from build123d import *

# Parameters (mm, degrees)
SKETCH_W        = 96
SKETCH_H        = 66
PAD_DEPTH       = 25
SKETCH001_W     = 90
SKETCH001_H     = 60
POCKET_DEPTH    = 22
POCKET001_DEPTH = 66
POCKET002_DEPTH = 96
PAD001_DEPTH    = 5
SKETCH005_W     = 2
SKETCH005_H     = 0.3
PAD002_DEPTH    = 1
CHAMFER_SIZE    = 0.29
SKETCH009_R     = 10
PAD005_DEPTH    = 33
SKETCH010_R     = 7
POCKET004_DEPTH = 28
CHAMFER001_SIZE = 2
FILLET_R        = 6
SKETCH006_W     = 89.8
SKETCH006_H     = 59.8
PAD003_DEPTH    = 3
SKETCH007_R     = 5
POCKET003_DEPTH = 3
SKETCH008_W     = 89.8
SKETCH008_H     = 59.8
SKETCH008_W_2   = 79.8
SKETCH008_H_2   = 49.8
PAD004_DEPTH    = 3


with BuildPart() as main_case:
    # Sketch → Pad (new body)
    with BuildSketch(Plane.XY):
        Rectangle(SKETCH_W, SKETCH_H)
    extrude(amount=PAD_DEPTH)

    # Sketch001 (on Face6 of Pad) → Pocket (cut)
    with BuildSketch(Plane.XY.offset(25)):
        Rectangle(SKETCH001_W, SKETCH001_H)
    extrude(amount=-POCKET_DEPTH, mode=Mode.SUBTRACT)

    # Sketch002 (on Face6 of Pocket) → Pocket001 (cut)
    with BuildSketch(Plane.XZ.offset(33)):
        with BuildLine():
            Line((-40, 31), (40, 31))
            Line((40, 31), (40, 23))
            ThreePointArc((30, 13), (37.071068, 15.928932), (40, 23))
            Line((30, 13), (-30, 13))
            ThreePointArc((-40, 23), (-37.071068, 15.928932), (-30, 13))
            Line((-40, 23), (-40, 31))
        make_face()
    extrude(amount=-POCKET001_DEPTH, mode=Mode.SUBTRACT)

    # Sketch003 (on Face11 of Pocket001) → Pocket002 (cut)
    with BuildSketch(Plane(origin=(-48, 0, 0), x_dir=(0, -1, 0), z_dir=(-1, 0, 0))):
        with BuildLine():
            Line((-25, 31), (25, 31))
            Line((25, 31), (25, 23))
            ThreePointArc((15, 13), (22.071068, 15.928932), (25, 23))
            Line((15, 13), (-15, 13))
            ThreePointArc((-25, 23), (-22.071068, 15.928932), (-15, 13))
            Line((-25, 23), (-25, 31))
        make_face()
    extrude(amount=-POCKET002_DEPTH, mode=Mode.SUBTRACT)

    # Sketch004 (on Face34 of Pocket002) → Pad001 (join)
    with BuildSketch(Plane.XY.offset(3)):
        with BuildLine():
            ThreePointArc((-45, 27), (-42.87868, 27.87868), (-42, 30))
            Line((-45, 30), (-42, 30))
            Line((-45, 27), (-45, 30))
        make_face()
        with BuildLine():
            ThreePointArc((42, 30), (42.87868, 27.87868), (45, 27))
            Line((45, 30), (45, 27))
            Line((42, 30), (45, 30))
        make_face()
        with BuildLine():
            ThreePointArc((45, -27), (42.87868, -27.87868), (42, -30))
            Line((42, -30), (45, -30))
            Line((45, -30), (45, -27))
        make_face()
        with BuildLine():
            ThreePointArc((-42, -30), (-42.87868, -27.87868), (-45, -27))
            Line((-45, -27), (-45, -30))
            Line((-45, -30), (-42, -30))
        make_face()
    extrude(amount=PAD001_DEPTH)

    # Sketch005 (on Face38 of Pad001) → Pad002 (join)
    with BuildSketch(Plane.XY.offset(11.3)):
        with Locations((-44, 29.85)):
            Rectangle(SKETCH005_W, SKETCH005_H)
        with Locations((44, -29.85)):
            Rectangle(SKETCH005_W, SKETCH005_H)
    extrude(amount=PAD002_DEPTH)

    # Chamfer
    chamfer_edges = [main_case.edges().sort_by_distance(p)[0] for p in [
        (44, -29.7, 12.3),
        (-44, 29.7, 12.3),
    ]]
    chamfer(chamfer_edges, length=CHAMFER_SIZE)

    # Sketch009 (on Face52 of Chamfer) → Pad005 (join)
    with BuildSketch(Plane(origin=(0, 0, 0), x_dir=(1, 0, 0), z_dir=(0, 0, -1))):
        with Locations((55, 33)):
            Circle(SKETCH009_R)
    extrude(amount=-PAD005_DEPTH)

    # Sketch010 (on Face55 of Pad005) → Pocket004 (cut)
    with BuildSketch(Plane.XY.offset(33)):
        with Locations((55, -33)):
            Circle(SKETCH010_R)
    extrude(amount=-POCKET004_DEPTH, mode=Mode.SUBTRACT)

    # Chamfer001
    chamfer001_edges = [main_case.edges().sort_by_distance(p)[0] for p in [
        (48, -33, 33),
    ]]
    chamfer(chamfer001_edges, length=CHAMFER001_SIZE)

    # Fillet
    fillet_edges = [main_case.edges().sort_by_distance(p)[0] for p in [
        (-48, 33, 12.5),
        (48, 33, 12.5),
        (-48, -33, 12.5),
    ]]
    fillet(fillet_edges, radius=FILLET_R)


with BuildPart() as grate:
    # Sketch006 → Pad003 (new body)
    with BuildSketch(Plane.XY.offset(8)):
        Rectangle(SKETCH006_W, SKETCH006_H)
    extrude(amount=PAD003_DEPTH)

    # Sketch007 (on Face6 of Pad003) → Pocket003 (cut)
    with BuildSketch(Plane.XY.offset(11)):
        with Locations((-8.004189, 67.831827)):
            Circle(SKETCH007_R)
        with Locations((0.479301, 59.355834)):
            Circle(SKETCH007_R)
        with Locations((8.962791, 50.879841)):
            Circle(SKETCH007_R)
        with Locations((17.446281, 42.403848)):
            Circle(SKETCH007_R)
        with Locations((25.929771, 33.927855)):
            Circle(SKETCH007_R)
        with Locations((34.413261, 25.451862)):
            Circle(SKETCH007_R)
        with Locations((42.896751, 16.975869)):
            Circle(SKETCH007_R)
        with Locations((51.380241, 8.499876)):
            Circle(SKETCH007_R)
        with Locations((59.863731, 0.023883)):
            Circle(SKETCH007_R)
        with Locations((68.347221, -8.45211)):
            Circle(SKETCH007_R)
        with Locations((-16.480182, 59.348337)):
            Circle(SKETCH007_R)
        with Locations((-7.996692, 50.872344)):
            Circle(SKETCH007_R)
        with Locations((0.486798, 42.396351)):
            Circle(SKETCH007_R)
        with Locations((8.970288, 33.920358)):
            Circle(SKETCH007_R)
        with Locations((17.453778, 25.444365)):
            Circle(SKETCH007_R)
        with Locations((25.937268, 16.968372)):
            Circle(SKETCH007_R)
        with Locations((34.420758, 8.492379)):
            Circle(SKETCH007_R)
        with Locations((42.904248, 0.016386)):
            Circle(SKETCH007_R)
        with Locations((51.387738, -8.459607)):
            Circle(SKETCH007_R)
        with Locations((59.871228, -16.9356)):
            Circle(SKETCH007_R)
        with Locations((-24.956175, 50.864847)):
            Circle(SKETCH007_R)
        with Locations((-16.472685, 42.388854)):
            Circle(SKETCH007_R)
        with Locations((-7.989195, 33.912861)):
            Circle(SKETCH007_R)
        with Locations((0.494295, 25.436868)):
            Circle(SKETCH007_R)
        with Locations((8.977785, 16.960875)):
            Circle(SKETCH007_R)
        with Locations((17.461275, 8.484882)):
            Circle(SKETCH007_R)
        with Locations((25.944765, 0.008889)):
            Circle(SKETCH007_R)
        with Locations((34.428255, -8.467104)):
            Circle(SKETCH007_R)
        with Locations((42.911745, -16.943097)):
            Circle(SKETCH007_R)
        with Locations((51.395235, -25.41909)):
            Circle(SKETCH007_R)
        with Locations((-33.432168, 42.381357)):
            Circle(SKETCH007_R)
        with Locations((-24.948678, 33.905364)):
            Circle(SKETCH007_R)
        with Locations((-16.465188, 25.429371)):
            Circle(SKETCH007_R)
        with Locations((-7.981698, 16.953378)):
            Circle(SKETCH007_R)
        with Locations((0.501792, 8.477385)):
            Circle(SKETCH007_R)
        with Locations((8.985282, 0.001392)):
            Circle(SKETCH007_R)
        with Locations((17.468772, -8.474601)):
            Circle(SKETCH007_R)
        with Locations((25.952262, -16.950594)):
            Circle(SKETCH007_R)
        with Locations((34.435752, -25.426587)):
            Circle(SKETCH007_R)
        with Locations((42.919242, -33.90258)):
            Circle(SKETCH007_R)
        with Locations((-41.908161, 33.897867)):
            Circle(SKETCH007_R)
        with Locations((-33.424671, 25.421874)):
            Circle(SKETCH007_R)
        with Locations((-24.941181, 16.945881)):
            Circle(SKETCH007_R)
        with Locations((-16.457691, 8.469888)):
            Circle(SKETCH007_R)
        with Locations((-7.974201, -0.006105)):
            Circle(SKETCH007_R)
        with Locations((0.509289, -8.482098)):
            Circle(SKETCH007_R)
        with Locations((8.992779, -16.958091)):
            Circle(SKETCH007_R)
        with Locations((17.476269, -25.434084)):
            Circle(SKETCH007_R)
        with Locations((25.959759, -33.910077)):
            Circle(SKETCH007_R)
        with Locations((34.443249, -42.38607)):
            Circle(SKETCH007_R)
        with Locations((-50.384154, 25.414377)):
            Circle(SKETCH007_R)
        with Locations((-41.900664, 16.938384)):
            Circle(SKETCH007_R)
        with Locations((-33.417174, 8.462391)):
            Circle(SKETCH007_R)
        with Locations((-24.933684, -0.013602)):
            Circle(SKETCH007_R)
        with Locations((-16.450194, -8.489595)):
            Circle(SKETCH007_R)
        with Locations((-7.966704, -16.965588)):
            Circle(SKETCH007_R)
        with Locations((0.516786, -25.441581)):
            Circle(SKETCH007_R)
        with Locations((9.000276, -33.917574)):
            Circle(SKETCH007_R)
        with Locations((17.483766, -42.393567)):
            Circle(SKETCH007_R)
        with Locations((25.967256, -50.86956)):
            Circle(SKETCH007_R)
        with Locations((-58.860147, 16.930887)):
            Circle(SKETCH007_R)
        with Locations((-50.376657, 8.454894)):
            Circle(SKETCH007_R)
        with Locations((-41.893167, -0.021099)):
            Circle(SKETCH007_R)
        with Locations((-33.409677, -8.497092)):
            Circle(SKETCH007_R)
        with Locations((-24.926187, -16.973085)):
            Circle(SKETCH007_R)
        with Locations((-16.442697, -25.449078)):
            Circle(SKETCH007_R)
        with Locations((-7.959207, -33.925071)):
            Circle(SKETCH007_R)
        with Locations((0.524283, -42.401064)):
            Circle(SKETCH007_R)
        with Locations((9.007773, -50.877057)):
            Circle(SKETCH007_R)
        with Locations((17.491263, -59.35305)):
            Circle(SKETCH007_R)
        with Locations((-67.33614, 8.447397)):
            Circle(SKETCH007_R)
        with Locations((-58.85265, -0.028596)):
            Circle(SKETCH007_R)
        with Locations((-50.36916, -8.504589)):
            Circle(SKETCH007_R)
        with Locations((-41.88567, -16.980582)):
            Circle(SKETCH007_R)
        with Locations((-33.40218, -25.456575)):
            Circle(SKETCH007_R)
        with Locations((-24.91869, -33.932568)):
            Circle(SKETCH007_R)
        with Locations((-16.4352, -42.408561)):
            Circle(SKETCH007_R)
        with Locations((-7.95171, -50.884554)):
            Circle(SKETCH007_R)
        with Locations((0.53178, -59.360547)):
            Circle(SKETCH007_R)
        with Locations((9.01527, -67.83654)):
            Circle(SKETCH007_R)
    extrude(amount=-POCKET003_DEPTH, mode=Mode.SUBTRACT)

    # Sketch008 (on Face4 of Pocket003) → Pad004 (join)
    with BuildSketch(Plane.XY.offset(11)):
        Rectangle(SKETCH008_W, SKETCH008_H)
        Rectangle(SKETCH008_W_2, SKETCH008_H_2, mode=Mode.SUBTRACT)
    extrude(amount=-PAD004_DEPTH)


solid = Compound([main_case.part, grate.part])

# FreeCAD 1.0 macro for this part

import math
import FreeCAD as App
import Part
import Sketcher

V = App.Vector
Q = App.Units.Quantity


def edges_at(feature, points):
    """Names of the edges that pass closest to the given points."""
    edges = feature.Shape.Edges
    near = lambda p: min(range(len(edges)), key=lambda i: edges[i].distToShape(Part.Vertex(*p))[0])
    return sorted({f"Edge{near(p) + 1}" for p in points})


def add_polygon(sketch, points):
    """Adds a closed chain of lines whose ends are joined by coincident constraints."""
    first, n = sketch.GeometryCount, len(points)
    for a, b in zip(points, points[1:] + points[:1]):
        sketch.addGeometry(Part.LineSegment(App.Vector(*a, 0), App.Vector(*b, 0)), False)
    for i in range(n):
        sketch.addConstraint(Sketcher.Constraint("Coincident", first + i, 2, first + (i + 1) % n, 1))

doc = App.newDocument("Part")
body = doc.addObject("PartDesign::Body", "Body")

# Sketch on XY plane
sketch1 = doc.addObject("Sketcher::SketchObject", "Sketch")
body.addObject(sketch1)
sketch1.AttachmentSupport = (doc.XY_Plane, [""])
sketch1.MapMode = "FlatFace"
add_polygon(sketch1, [(-48, 33), (-48, -33), (48, -33), (48, 33)])  # lines 0-3
sketch1.addConstraint([
    Sketcher.Constraint("Vertical", 0),
    Sketcher.Constraint("Horizontal", 1),
    Sketcher.Constraint("Vertical", 2),
    Sketcher.Constraint("Horizontal", 3),
    Sketcher.Constraint("Symmetric", 0, 2, 2, 2, -1, 1),
    Sketcher.Constraint("DistanceX", 1, 1, 1, 2, Q("96 mm")),
    Sketcher.Constraint("DistanceY", 0, 2, 0, 1, Q("66 mm")),
])
pad1 = doc.addObject("PartDesign::Pad", "Pad")
body.addObject(pad1)
pad1.Profile = sketch1
pad1.Length = 25

# Sketch on XY plane
sketch2 = doc.addObject("Sketcher::SketchObject", "Sketch001")
body.addObject(sketch2)
sketch2.AttachmentSupport = (doc.XY_Plane, [""])
sketch2.MapMode = "FlatFace"
sketch2.AttachmentOffset = App.Placement(V(0, 0, 25), App.Rotation())
add_polygon(sketch2, [(-45, 30), (-45, -30), (45, -30), (45, 30)])  # lines 0-3
sketch2.addConstraint([
    Sketcher.Constraint("Vertical", 0),
    Sketcher.Constraint("Horizontal", 1),
    Sketcher.Constraint("Vertical", 2),
    Sketcher.Constraint("Horizontal", 3),
    Sketcher.Constraint("Symmetric", 0, 2, 2, 2, -1, 1),
    Sketcher.Constraint("DistanceX", 1, 1, 1, 2, Q("90 mm")),
    Sketcher.Constraint("DistanceY", 0, 2, 0, 1, Q("60 mm")),
])
pocket1 = doc.addObject("PartDesign::Pocket", "Pocket")
body.addObject(pocket1)
pocket1.Profile = sketch2
pocket1.Length = 22

# Sketch on XZ plane
sketch3 = doc.addObject("Sketcher::SketchObject", "Sketch002")
body.addObject(sketch3)
sketch3.AttachmentSupport = (doc.XZ_Plane, [""])
sketch3.MapMode = "FlatFace"
sketch3.AttachmentOffset = App.Placement(V(0, 0, 33), App.Rotation())
sketch3.addGeometry([
    Part.LineSegment(V(40, 31, 0), V(-40, 31, 0)),  # 0
    Part.LineSegment(V(-40, 31, 0), V(-40, 23, 0)),  # 1
    Part.ArcOfCircle(Part.Circle(V(-30, 23, 0), V(0, 0, 1), 10), math.radians(180), math.radians(270)),  # 2
    Part.LineSegment(V(-30, 13, 0), V(30, 13, 0)),  # 3
    Part.ArcOfCircle(Part.Circle(V(30, 23, 0), V(0, 0, 1), 10), math.radians(-90), math.radians(0)),  # 4
    Part.LineSegment(V(40, 23, 0), V(40, 31, 0)),  # 5
], False)
sketch3.addConstraint([
    Sketcher.Constraint("Coincident", 0, 2, 1, 1),
    Sketcher.Constraint("Tangent", 1, 2, 2, 1),
    Sketcher.Constraint("Tangent", 2, 2, 3, 1),
    Sketcher.Constraint("Tangent", 3, 2, 4, 1),
    Sketcher.Constraint("Tangent", 4, 2, 5, 1),
    Sketcher.Constraint("Coincident", 5, 2, 0, 1),
    Sketcher.Constraint("Horizontal", 0),
    Sketcher.Constraint("Vertical", 1),
    Sketcher.Constraint("Horizontal", 3),
    Sketcher.Constraint("Vertical", 5),
    Sketcher.Constraint("Equal", 2, 4),
    Sketcher.Constraint("Radius", 2, Q("9.999999 mm")),
    Sketcher.Constraint("DistanceX", 0, 2, 0, 1, Q("80 mm")),
    Sketcher.Constraint("DistanceY", 1, 2, 1, 1, Q("8 mm")),
    Sketcher.Constraint("DistanceX", 2, 3, -1, 1, Q("30.000001 mm")),
    Sketcher.Constraint("DistanceY", -1, 1, 2, 3, Q("22.999999 mm")),
])
pocket2 = doc.addObject("PartDesign::Pocket", "Pocket001")
body.addObject(pocket2)
pocket2.Profile = sketch3
pocket2.Length = 66

# Sketch on YZ plane
sketch4 = doc.addObject("Sketcher::SketchObject", "Sketch003")
body.addObject(sketch4)
sketch4.AttachmentSupport = (doc.YZ_Plane, [""])
sketch4.MapMode = "FlatFace"
sketch4.AttachmentOffset = App.Placement(V(0, 0, -48), App.Rotation())
sketch4.addGeometry([
    Part.LineSegment(V(-25, 31, 0), V(25, 31, 0)),  # 0
    Part.LineSegment(V(25, 31, 0), V(25, 23, 0)),  # 1
    Part.ArcOfCircle(Part.Circle(V(15, 23, 0), V(0, 0, 1), 10), math.radians(-90), math.radians(0)),  # 2
    Part.LineSegment(V(15, 13, 0), V(-15, 13, 0)),  # 3
    Part.ArcOfCircle(Part.Circle(V(-15, 23, 0), V(0, 0, 1), 10), math.radians(180), math.radians(270)),  # 4
    Part.LineSegment(V(-25, 23, 0), V(-25, 31, 0)),  # 5
], False)
sketch4.addConstraint([
    Sketcher.Constraint("Coincident", 0, 2, 1, 1),
    Sketcher.Constraint("Tangent", 1, 2, 2, 2),
    Sketcher.Constraint("Tangent", 2, 1, 3, 1),
    Sketcher.Constraint("Tangent", 3, 2, 4, 2),
    Sketcher.Constraint("Tangent", 4, 1, 5, 1),
    Sketcher.Constraint("Coincident", 5, 2, 0, 1),
    Sketcher.Constraint("Horizontal", 0),
    Sketcher.Constraint("Vertical", 1),
    Sketcher.Constraint("Horizontal", 3),
    Sketcher.Constraint("Vertical", 5),
    Sketcher.Constraint("Equal", 2, 4),
    Sketcher.Constraint("Radius", 2, Q("9.999999 mm")),
    Sketcher.Constraint("DistanceX", 0, 1, 0, 2, Q("50 mm")),
    Sketcher.Constraint("DistanceY", 1, 2, 1, 1, Q("8 mm")),
    Sketcher.Constraint("DistanceX", -1, 1, 2, 3, Q("15.000001 mm")),
    Sketcher.Constraint("DistanceY", -1, 1, 2, 3, Q("22.999999 mm")),
])
pocket3 = doc.addObject("PartDesign::Pocket", "Pocket002")
body.addObject(pocket3)
pocket3.Profile = sketch4
pocket3.Length = 96
pocket3.Reversed = True

# Sketch on XY plane
sketch5 = doc.addObject("Sketcher::SketchObject", "Sketch004")
body.addObject(sketch5)
sketch5.AttachmentSupport = (doc.XY_Plane, [""])
sketch5.MapMode = "FlatFace"
sketch5.AttachmentOffset = App.Placement(V(0, 0, 3), App.Rotation())
sketch5.addGeometry([
    Part.ArcOfCircle(Part.Circle(V(-45, 30, 0), V(0, 0, 1), 3), math.radians(-90), math.radians(0)),  # 0
    Part.LineSegment(V(-42, 30, 0), V(-45, 30, 0)),  # 1
    Part.LineSegment(V(-45, 30, 0), V(-45, 27, 0)),  # 2
    Part.ArcOfCircle(Part.Circle(V(45, 30, 0), V(0, 0, 1), 3), math.radians(-180), math.radians(-90)),  # 3
    Part.LineSegment(V(45, 27, 0), V(45, 30, 0)),  # 4
    Part.LineSegment(V(45, 30, 0), V(42, 30, 0)),  # 5
    Part.ArcOfCircle(Part.Circle(V(45, -30, 0), V(0, 0, 1), 3), math.radians(90), math.radians(180)),  # 6
    Part.LineSegment(V(42, -30, 0), V(45, -30, 0)),  # 7
    Part.LineSegment(V(45, -30, 0), V(45, -27, 0)),  # 8
    Part.ArcOfCircle(Part.Circle(V(-45, -30, 0), V(0, 0, 1), 3), math.radians(0), math.radians(90)),  # 9
    Part.LineSegment(V(-45, -27, 0), V(-45, -30, 0)),  # 10
    Part.LineSegment(V(-45, -30, 0), V(-42, -30, 0)),  # 11
], False)
sketch5.addConstraint([
    Sketcher.Constraint("Coincident", 0, 2, 1, 1),
    Sketcher.Constraint("Coincident", 1, 2, 2, 1),
    Sketcher.Constraint("Coincident", 2, 2, 0, 1),
    Sketcher.Constraint("Coincident", 3, 2, 4, 1),
    Sketcher.Constraint("Coincident", 4, 2, 5, 1),
    Sketcher.Constraint("Coincident", 5, 2, 3, 1),
    Sketcher.Constraint("Coincident", 6, 2, 7, 1),
    Sketcher.Constraint("Coincident", 7, 2, 8, 1),
    Sketcher.Constraint("Coincident", 8, 2, 6, 1),
    Sketcher.Constraint("Coincident", 9, 2, 10, 1),
    Sketcher.Constraint("Coincident", 10, 2, 11, 1),
    Sketcher.Constraint("Coincident", 11, 2, 9, 1),
    Sketcher.Constraint("Horizontal", 1),
    Sketcher.Constraint("Vertical", 2),
    Sketcher.Constraint("Vertical", 4),
    Sketcher.Constraint("Horizontal", 5),
    Sketcher.Constraint("Horizontal", 7),
    Sketcher.Constraint("Vertical", 8),
    Sketcher.Constraint("Vertical", 10),
    Sketcher.Constraint("Horizontal", 11),
    Sketcher.Constraint("Coincident", 1, 2, 0, 3),
    Sketcher.Constraint("Coincident", 4, 2, 3, 3),
    Sketcher.Constraint("Coincident", 7, 2, 6, 3),
    Sketcher.Constraint("Coincident", 10, 2, 9, 3),
    Sketcher.Constraint("Equal", 0, 3),
    Sketcher.Constraint("Equal", 3, 6),
    Sketcher.Constraint("Equal", 6, 9),
    Sketcher.Constraint("Symmetric", 0, 3, 6, 3, -1, 1),
    Sketcher.Constraint("Symmetric", 3, 3, 9, 3, -1, 1),
    Sketcher.Constraint("Symmetric", 0, 3, 3, 3, -2),
    Sketcher.Constraint("Radius", 0, Q("3.000001 mm")),
    Sketcher.Constraint("DistanceX", 0, 3, -1, 1, Q("45.000001 mm")),
    Sketcher.Constraint("DistanceY", -1, 1, 0, 3, Q("30.000001 mm")),
])
pad2 = doc.addObject("PartDesign::Pad", "Pad001")
body.addObject(pad2)
pad2.Profile = sketch5
pad2.Length = 5

# Sketch on XY plane
sketch6 = doc.addObject("Sketcher::SketchObject", "Sketch005")
body.addObject(sketch6)
sketch6.AttachmentSupport = (doc.XY_Plane, [""])
sketch6.MapMode = "FlatFace"
sketch6.AttachmentOffset = App.Placement(V(0, 0, 11.3), App.Rotation())
add_polygon(sketch6, [(-45, 30), (-45, 29.7), (-43, 29.7), (-43, 30)])  # lines 0-3
add_polygon(sketch6, [(43, -29.7), (43, -30), (45, -30), (45, -29.7)])  # lines 4-7
sketch6.addConstraint([
    Sketcher.Constraint("Vertical", 0),
    Sketcher.Constraint("Horizontal", 1),
    Sketcher.Constraint("Vertical", 2),
    Sketcher.Constraint("Horizontal", 3),
    Sketcher.Constraint("Vertical", 4),
    Sketcher.Constraint("Horizontal", 5),
    Sketcher.Constraint("Vertical", 6),
    Sketcher.Constraint("Horizontal", 7),
    Sketcher.Constraint("Symmetric", 2, 2, 4, 2, -1, 1),
    Sketcher.Constraint("Symmetric", 0, 2, 6, 2, -1, 1),
    Sketcher.Constraint("DistanceX", 1, 1, 1, 2, Q("2 mm")),
    Sketcher.Constraint("DistanceY", 0, 2, 0, 1, Q("0.3 mm")),
    Sketcher.Constraint("DistanceX", 0, 2, -1, 1, Q("45 mm")),
    Sketcher.Constraint("DistanceY", -1, 1, 2, 2, Q("30 mm")),
])
pad3 = doc.addObject("PartDesign::Pad", "Pad002")
body.addObject(pad3)
pad3.Profile = sketch6
pad3.Length = 1
doc.recompute()

chamfer = doc.addObject("PartDesign::Chamfer", "Chamfer")
body.addObject(chamfer)
chamfer.Base = (pad3, edges_at(pad3, [(44, -29.7, 12.3), (-44, 29.7, 12.3)]))
chamfer.Size = 0.29

# Sketch on XY plane
sketch7 = doc.addObject("Sketcher::SketchObject", "Sketch006")
body.addObject(sketch7)
sketch7.AttachmentSupport = (doc.XY_Plane, [""])
sketch7.MapMode = "FlatFace"
sketch7.addGeometry(Part.Circle(V(55, -33, 0), V(0, 0, 1), 10), False)
sketch7.addConstraint([
    Sketcher.Constraint("Diameter", 0, Q("20 mm")),
    Sketcher.Constraint("DistanceX", -1, 1, 0, 3, Q("55 mm")),
    Sketcher.Constraint("DistanceY", 0, 3, -1, 1, Q("33 mm")),
])
pad4 = doc.addObject("PartDesign::Pad", "Pad003")
body.addObject(pad4)
pad4.Profile = sketch7
pad4.Length = 33

# Sketch on XY plane
sketch8 = doc.addObject("Sketcher::SketchObject", "Sketch007")
body.addObject(sketch8)
sketch8.AttachmentSupport = (doc.XY_Plane, [""])
sketch8.MapMode = "FlatFace"
sketch8.AttachmentOffset = App.Placement(V(0, 0, 33), App.Rotation())
sketch8.addGeometry(Part.Circle(V(55, -33, 0), V(0, 0, 1), 7), False)
sketch8.addConstraint([
    Sketcher.Constraint("Diameter", 0, Q("14 mm")),
    Sketcher.Constraint("DistanceX", -1, 1, 0, 3, Q("55 mm")),
    Sketcher.Constraint("DistanceY", 0, 3, -1, 1, Q("33 mm")),
])
pocket4 = doc.addObject("PartDesign::Pocket", "Pocket003")
body.addObject(pocket4)
pocket4.Profile = sketch8
pocket4.Length = 28
doc.recompute()

chamfer2 = doc.addObject("PartDesign::Chamfer", "Chamfer001")
body.addObject(chamfer2)
chamfer2.Base = (pocket4, edges_at(pocket4, [(48, -33, 33)]))
chamfer2.Size = 2
doc.recompute()

fillet = doc.addObject("PartDesign::Fillet", "Fillet")
body.addObject(fillet)
fillet.Base = (chamfer2, edges_at(chamfer2, [(-48, 33, 12.5), (48, 33, 12.5), (-48, -33, 12.5)]))
fillet.Radius = 6
body2 = doc.addObject("PartDesign::Body", "Body001")

# Sketch on XY plane
sketch9 = doc.addObject("Sketcher::SketchObject", "Sketch008")
body2.addObject(sketch9)
sketch9.AttachmentSupport = (doc.getObject("XY_Plane001"), [""])
sketch9.MapMode = "FlatFace"
sketch9.AttachmentOffset = App.Placement(V(0, 0, 8), App.Rotation())
add_polygon(sketch9, [(-45, 30), (-45, -30), (45, -30), (45, 30)])  # lines 0-3
sketch9.addConstraint([
    Sketcher.Constraint("Vertical", 0),
    Sketcher.Constraint("Horizontal", 1),
    Sketcher.Constraint("Vertical", 2),
    Sketcher.Constraint("Horizontal", 3),
    Sketcher.Constraint("Symmetric", 0, 2, 2, 2, -1, 1),
    Sketcher.Constraint("DistanceX", 1, 1, 1, 2, Q("89.8 mm")),
    Sketcher.Constraint("DistanceY", 0, 2, 0, 1, Q("59.8 mm")),
])
pad5 = doc.addObject("PartDesign::Pad", "Pad004")
body2.addObject(pad5)
pad5.Profile = sketch9
pad5.Length = 3

# Sketch on XY plane
sketch10 = doc.addObject("Sketcher::SketchObject", "Sketch009")
body2.addObject(sketch10)
sketch10.AttachmentSupport = (doc.getObject("XY_Plane001"), [""])
sketch10.MapMode = "FlatFace"
sketch10.AttachmentOffset = App.Placement(V(0, 0, 11), App.Rotation())
sketch10.addGeometry([
    Part.Circle(V(-8, 68, 0), V(0, 0, 1), 5),  # 0
    Part.Circle(V(0, 59, 0), V(0, 0, 1), 5),  # 1
    Part.Circle(V(9, 51, 0), V(0, 0, 1), 5),  # 2
    Part.Circle(V(17, 42, 0), V(0, 0, 1), 5),  # 3
    Part.Circle(V(26, 34, 0), V(0, 0, 1), 5),  # 4
    Part.Circle(V(34, 25, 0), V(0, 0, 1), 5),  # 5
    Part.Circle(V(43, 17, 0), V(0, 0, 1), 5),  # 6
    Part.Circle(V(51, 8, 0), V(0, 0, 1), 5),  # 7
    Part.Circle(V(60, 0, 0), V(0, 0, 1), 5),  # 8
    Part.Circle(V(68, -8, 0), V(0, 0, 1), 5),  # 9
    Part.Circle(V(-16, 59, 0), V(0, 0, 1), 5),  # 10
    Part.Circle(V(-8, 51, 0), V(0, 0, 1), 5),  # 11
    Part.Circle(V(0, 42, 0), V(0, 0, 1), 5),  # 12
    Part.Circle(V(9, 34, 0), V(0, 0, 1), 5),  # 13
    Part.Circle(V(17, 25, 0), V(0, 0, 1), 5),  # 14
    Part.Circle(V(26, 17, 0), V(0, 0, 1), 5),  # 15
    Part.Circle(V(34, 8, 0), V(0, 0, 1), 5),  # 16
    Part.Circle(V(43, 0, 0), V(0, 0, 1), 5),  # 17
    Part.Circle(V(51, -8, 0), V(0, 0, 1), 5),  # 18
    Part.Circle(V(60, -17, 0), V(0, 0, 1), 5),  # 19
    Part.Circle(V(-25, 51, 0), V(0, 0, 1), 5),  # 20
    Part.Circle(V(-16, 42, 0), V(0, 0, 1), 5),  # 21
    Part.Circle(V(-8, 34, 0), V(0, 0, 1), 5),  # 22
    Part.Circle(V(0, 25, 0), V(0, 0, 1), 5),  # 23
    Part.Circle(V(9, 17, 0), V(0, 0, 1), 5),  # 24
    Part.Circle(V(17, 8, 0), V(0, 0, 1), 5),  # 25
    Part.Circle(V(26, 0, 0), V(0, 0, 1), 5),  # 26
    Part.Circle(V(34, -8, 0), V(0, 0, 1), 5),  # 27
    Part.Circle(V(43, -17, 0), V(0, 0, 1), 5),  # 28
    Part.Circle(V(51, -25, 0), V(0, 0, 1), 5),  # 29
    Part.Circle(V(-33, 42, 0), V(0, 0, 1), 5),  # 30
    Part.Circle(V(-25, 34, 0), V(0, 0, 1), 5),  # 31
    Part.Circle(V(-16, 25, 0), V(0, 0, 1), 5),  # 32
    Part.Circle(V(-8, 17, 0), V(0, 0, 1), 5),  # 33
    Part.Circle(V(1, 8, 0), V(0, 0, 1), 5),  # 34
    Part.Circle(V(9, 0, 0), V(0, 0, 1), 5),  # 35
    Part.Circle(V(17, -8, 0), V(0, 0, 1), 5),  # 36
    Part.Circle(V(26, -17, 0), V(0, 0, 1), 5),  # 37
    Part.Circle(V(34, -25, 0), V(0, 0, 1), 5),  # 38
    Part.Circle(V(43, -34, 0), V(0, 0, 1), 5),  # 39
    Part.Circle(V(-42, 34, 0), V(0, 0, 1), 5),  # 40
    Part.Circle(V(-33, 25, 0), V(0, 0, 1), 5),  # 41
    Part.Circle(V(-25, 17, 0), V(0, 0, 1), 5),  # 42
    Part.Circle(V(-16, 8, 0), V(0, 0, 1), 5),  # 43
    Part.Circle(V(-8, 0, 0), V(0, 0, 1), 5),  # 44
    Part.Circle(V(1, -8, 0), V(0, 0, 1), 5),  # 45
    Part.Circle(V(9, -17, 0), V(0, 0, 1), 5),  # 46
    Part.Circle(V(17, -25, 0), V(0, 0, 1), 5),  # 47
    Part.Circle(V(26, -34, 0), V(0, 0, 1), 5),  # 48
    Part.Circle(V(34, -42, 0), V(0, 0, 1), 5),  # 49
    Part.Circle(V(-50, 25, 0), V(0, 0, 1), 5),  # 50
    Part.Circle(V(-42, 17, 0), V(0, 0, 1), 5),  # 51
    Part.Circle(V(-33, 8, 0), V(0, 0, 1), 5),  # 52
    Part.Circle(V(-25, 0, 0), V(0, 0, 1), 5),  # 53
    Part.Circle(V(-16, -8, 0), V(0, 0, 1), 5),  # 54
    Part.Circle(V(-8, -17, 0), V(0, 0, 1), 5),  # 55
    Part.Circle(V(1, -25, 0), V(0, 0, 1), 5),  # 56
    Part.Circle(V(9, -34, 0), V(0, 0, 1), 5),  # 57
    Part.Circle(V(17, -42, 0), V(0, 0, 1), 5),  # 58
    Part.Circle(V(26, -51, 0), V(0, 0, 1), 5),  # 59
    Part.Circle(V(-59, 17, 0), V(0, 0, 1), 5),  # 60
    Part.Circle(V(-50, 8, 0), V(0, 0, 1), 5),  # 61
    Part.Circle(V(-42, 0, 0), V(0, 0, 1), 5),  # 62
    Part.Circle(V(-33, -8, 0), V(0, 0, 1), 5),  # 63
    Part.Circle(V(-25, -17, 0), V(0, 0, 1), 5),  # 64
    Part.Circle(V(-16, -25, 0), V(0, 0, 1), 5),  # 65
    Part.Circle(V(-8, -34, 0), V(0, 0, 1), 5),  # 66
    Part.Circle(V(1, -42, 0), V(0, 0, 1), 5),  # 67
    Part.Circle(V(9, -51, 0), V(0, 0, 1), 5),  # 68
    Part.Circle(V(17, -59, 0), V(0, 0, 1), 5),  # 69
    Part.Circle(V(-67, 8, 0), V(0, 0, 1), 5),  # 70
    Part.Circle(V(-59, 0, 0), V(0, 0, 1), 5),  # 71
    Part.Circle(V(-50, -9, 0), V(0, 0, 1), 5),  # 72
    Part.Circle(V(-42, -17, 0), V(0, 0, 1), 5),  # 73
    Part.Circle(V(-33, -25, 0), V(0, 0, 1), 5),  # 74
    Part.Circle(V(-25, -34, 0), V(0, 0, 1), 5),  # 75
    Part.Circle(V(-16, -42, 0), V(0, 0, 1), 5),  # 76
    Part.Circle(V(-8, -51, 0), V(0, 0, 1), 5),  # 77
    Part.Circle(V(1, -59, 0), V(0, 0, 1), 5),  # 78
    Part.Circle(V(9, -68, 0), V(0, 0, 1), 5),  # 79
], False)
sketch10.addConstraint([
    Sketcher.Constraint("Equal", 0, 1),
    Sketcher.Constraint("Equal", 1, 2),
    Sketcher.Constraint("Equal", 2, 3),
    Sketcher.Constraint("Equal", 3, 4),
    Sketcher.Constraint("Equal", 4, 5),
    Sketcher.Constraint("Equal", 5, 6),
    Sketcher.Constraint("Equal", 6, 7),
    Sketcher.Constraint("Equal", 7, 8),
    Sketcher.Constraint("Equal", 8, 9),
    Sketcher.Constraint("Equal", 9, 10),
    Sketcher.Constraint("Equal", 10, 11),
    Sketcher.Constraint("Equal", 11, 12),
    Sketcher.Constraint("Equal", 12, 13),
    Sketcher.Constraint("Equal", 13, 14),
    Sketcher.Constraint("Equal", 14, 15),
    Sketcher.Constraint("Equal", 15, 16),
    Sketcher.Constraint("Equal", 16, 17),
    Sketcher.Constraint("Equal", 17, 18),
    Sketcher.Constraint("Equal", 18, 19),
    Sketcher.Constraint("Equal", 19, 20),
    Sketcher.Constraint("Equal", 20, 21),
    Sketcher.Constraint("Equal", 21, 22),
    Sketcher.Constraint("Equal", 22, 23),
    Sketcher.Constraint("Equal", 23, 24),
    Sketcher.Constraint("Equal", 24, 25),
    Sketcher.Constraint("Equal", 25, 26),
    Sketcher.Constraint("Equal", 26, 27),
    Sketcher.Constraint("Equal", 27, 28),
    Sketcher.Constraint("Equal", 28, 29),
    Sketcher.Constraint("Equal", 29, 30),
    Sketcher.Constraint("Equal", 30, 31),
    Sketcher.Constraint("Equal", 31, 32),
    Sketcher.Constraint("Equal", 32, 33),
    Sketcher.Constraint("Equal", 33, 34),
    Sketcher.Constraint("Equal", 34, 35),
    Sketcher.Constraint("Equal", 35, 36),
    Sketcher.Constraint("Equal", 36, 37),
    Sketcher.Constraint("Equal", 37, 38),
    Sketcher.Constraint("Equal", 38, 39),
    Sketcher.Constraint("Equal", 39, 40),
    Sketcher.Constraint("Equal", 40, 41),
    Sketcher.Constraint("Equal", 41, 42),
    Sketcher.Constraint("Equal", 42, 43),
    Sketcher.Constraint("Equal", 43, 44),
    Sketcher.Constraint("Equal", 44, 45),
    Sketcher.Constraint("Equal", 45, 46),
    Sketcher.Constraint("Equal", 46, 47),
    Sketcher.Constraint("Equal", 47, 48),
    Sketcher.Constraint("Equal", 48, 49),
    Sketcher.Constraint("Equal", 49, 50),
    Sketcher.Constraint("Equal", 50, 51),
    Sketcher.Constraint("Equal", 51, 52),
    Sketcher.Constraint("Equal", 52, 53),
    Sketcher.Constraint("Equal", 53, 54),
    Sketcher.Constraint("Equal", 54, 55),
    Sketcher.Constraint("Equal", 55, 56),
    Sketcher.Constraint("Equal", 56, 57),
    Sketcher.Constraint("Equal", 57, 58),
    Sketcher.Constraint("Equal", 58, 59),
    Sketcher.Constraint("Equal", 59, 60),
    Sketcher.Constraint("Equal", 60, 61),
    Sketcher.Constraint("Equal", 61, 62),
    Sketcher.Constraint("Equal", 62, 63),
    Sketcher.Constraint("Equal", 63, 64),
    Sketcher.Constraint("Equal", 64, 65),
    Sketcher.Constraint("Equal", 65, 66),
    Sketcher.Constraint("Equal", 66, 67),
    Sketcher.Constraint("Equal", 67, 68),
    Sketcher.Constraint("Equal", 68, 69),
    Sketcher.Constraint("Equal", 69, 70),
    Sketcher.Constraint("Equal", 70, 71),
    Sketcher.Constraint("Equal", 71, 72),
    Sketcher.Constraint("Equal", 72, 73),
    Sketcher.Constraint("Equal", 73, 74),
    Sketcher.Constraint("Equal", 74, 75),
    Sketcher.Constraint("Equal", 75, 76),
    Sketcher.Constraint("Equal", 76, 77),
    Sketcher.Constraint("Equal", 77, 78),
    Sketcher.Constraint("Equal", 78, 79),
    Sketcher.Constraint("Diameter", 0, Q("10 mm")),
    Sketcher.Constraint("DistanceX", -1, 1, 1, 3, Q("0.479301 mm")),
    Sketcher.Constraint("DistanceY", 19, 3, -1, 1, Q("16.9356 mm")),
    Sketcher.Constraint("DistanceY", 36, 3, -1, 1, Q("8.474601 mm")),
    Sketcher.Constraint("DistanceX", 44, 3, -1, 1, Q("7.974201 mm")),
    Sketcher.Constraint("DistanceY", 62, 3, -1, 1, Q("0.021099 mm")),
    Sketcher.Constraint("DistanceX", 76, 3, -1, 1, Q("16.4352 mm")),
    Sketcher.Constraint("DistanceX", 0, 3, -1, 1, Q("8.004189 mm")),
    Sketcher.Constraint("DistanceX", -1, 1, 2, 3, Q("8.962791 mm")),
    Sketcher.Constraint("DistanceY", -1, 1, 2, 3, Q("50.879841 mm")),
    Sketcher.Constraint("DistanceX", -1, 1, 3, 3, Q("17.446281 mm")),
    Sketcher.Constraint("DistanceY", -1, 1, 3, 3, Q("42.403848 mm")),
    Sketcher.Constraint("DistanceX", -1, 1, 4, 3, Q("25.929771 mm")),
    Sketcher.Constraint("DistanceX", -1, 1, 5, 3, Q("34.413261 mm")),
    Sketcher.Constraint("DistanceY", -1, 1, 5, 3, Q("25.451862 mm")),
    Sketcher.Constraint("DistanceX", -1, 1, 6, 3, Q("42.896751 mm")),
    Sketcher.Constraint("DistanceY", -1, 1, 6, 3, Q("16.975869 mm")),
    Sketcher.Constraint("DistanceX", -1, 1, 7, 3, Q("51.380241 mm")),
    Sketcher.Constraint("DistanceX", -1, 1, 8, 3, Q("59.863731 mm")),
    Sketcher.Constraint("DistanceX", -1, 1, 9, 3, Q("68.347221 mm")),
    Sketcher.Constraint("DistanceY", 9, 3, -1, 1, Q("8.45211 mm")),
    Sketcher.Constraint("DistanceX", 10, 3, -1, 1, Q("16.480182 mm")),
    Sketcher.Constraint("DistanceY", -1, 1, 12, 3, Q("42.396351 mm")),
    Sketcher.Constraint("DistanceX", -1, 1, 14, 3, Q("17.453778 mm")),
    Sketcher.Constraint("DistanceY", -1, 1, 15, 3, Q("16.968372 mm")),
    Sketcher.Constraint("DistanceY", -1, 1, 16, 3, Q("8.492379 mm")),
    Sketcher.Constraint("DistanceX", -1, 1, 17, 3, Q("42.904248 mm")),
    Sketcher.Constraint("DistanceX", -1, 1, 19, 3, Q("59.871228 mm")),
    Sketcher.Constraint("DistanceY", -1, 1, 22, 3, Q("33.912861 mm")),
    Sketcher.Constraint("DistanceY", -1, 1, 23, 3, Q("25.436868 mm")),
    Sketcher.Constraint("DistanceY", -1, 1, 26, 3, Q("0.008889 mm")),
    Sketcher.Constraint("DistanceY", 29, 3, -1, 1, Q("25.41909 mm")),
    Sketcher.Constraint("DistanceX", 31, 3, -1, 1, Q("24.948678 mm")),
    Sketcher.Constraint("DistanceX", 32, 3, -1, 1, Q("16.465188 mm")),
    Sketcher.Constraint("DistanceY", -1, 1, 32, 3, Q("25.429371 mm")),
    Sketcher.Constraint("DistanceY", -1, 1, 33, 3, Q("16.953378 mm")),
    Sketcher.Constraint("DistanceX", -1, 1, 39, 3, Q("42.919242 mm")),
    Sketcher.Constraint("DistanceY", 39, 3, -1, 1, Q("33.90258 mm")),
    Sketcher.Constraint("DistanceX", 40, 3, -1, 1, Q("41.908161 mm")),
    Sketcher.Constraint("DistanceX", 41, 3, -1, 1, Q("33.424671 mm")),
    Sketcher.Constraint("DistanceX", 42, 3, -1, 1, Q("24.941181 mm")),
    Sketcher.Constraint("DistanceY", -1, 1, 42, 3, Q("16.945881 mm")),
    Sketcher.Constraint("DistanceX", 43, 3, -1, 1, Q("16.457691 mm")),
    Sketcher.Constraint("DistanceX", -1, 1, 45, 3, Q("0.509289 mm")),
    Sketcher.Constraint("DistanceX", -1, 1, 46, 3, Q("8.992779 mm")),
    Sketcher.Constraint("DistanceY", 46, 3, -1, 1, Q("16.958091 mm")),
    Sketcher.Constraint("DistanceX", -1, 1, 47, 3, Q("17.476269 mm")),
    Sketcher.Constraint("DistanceX", -1, 1, 48, 3, Q("25.959759 mm")),
    Sketcher.Constraint("DistanceX", -1, 1, 49, 3, Q("34.443249 mm")),
    Sketcher.Constraint("DistanceY", 49, 3, -1, 1, Q("42.38607 mm")),
    Sketcher.Constraint("DistanceY", -1, 1, 52, 3, Q("8.462391 mm")),
    Sketcher.Constraint("DistanceY", 55, 3, -1, 1, Q("16.965588 mm")),
    Sketcher.Constraint("DistanceY", 56, 3, -1, 1, Q("25.441581 mm")),
    Sketcher.Constraint("DistanceY", 59, 3, -1, 1, Q("50.86956 mm")),
    Sketcher.Constraint("DistanceY", 65, 3, -1, 1, Q("25.449078 mm")),
    Sketcher.Constraint("DistanceY", 66, 3, -1, 1, Q("33.925071 mm")),
    Sketcher.Constraint("DistanceY", 69, 3, -1, 1, Q("59.35305 mm")),
    Sketcher.Constraint("DistanceX", 70, 3, -1, 1, Q("67.33614 mm")),
    Sketcher.Constraint("DistanceX", 71, 3, -1, 1, Q("58.85265 mm")),
    Sketcher.Constraint("DistanceX", 72, 3, -1, 1, Q("50.36916 mm")),
    Sketcher.Constraint("DistanceY", 72, 3, -1, 1, Q("8.504589 mm")),
    Sketcher.Constraint("DistanceX", 73, 3, -1, 1, Q("41.88567 mm")),
    Sketcher.Constraint("DistanceY", 73, 3, -1, 1, Q("16.980582 mm")),
    Sketcher.Constraint("DistanceX", 74, 3, -1, 1, Q("33.40218 mm")),
    Sketcher.Constraint("DistanceX", 75, 3, -1, 1, Q("24.91869 mm")),
    Sketcher.Constraint("DistanceY", 75, 3, -1, 1, Q("33.932568 mm")),
    Sketcher.Constraint("DistanceY", 76, 3, -1, 1, Q("42.408561 mm")),
    Sketcher.Constraint("DistanceX", 77, 3, -1, 1, Q("7.95171 mm")),
    Sketcher.Constraint("DistanceX", -1, 1, 78, 3, Q("0.53178 mm")),
    Sketcher.Constraint("DistanceX", -1, 1, 79, 3, Q("9.01527 mm")),
    Sketcher.Constraint("DistanceY", 79, 3, -1, 1, Q("67.83654 mm")),
    Sketcher.Constraint("DistanceY", -1, 1, 0, 3, Q("67.831827 mm")),
    Sketcher.Constraint("DistanceY", -1, 1, 1, 3, Q("59.355834 mm")),
    Sketcher.Constraint("DistanceY", -1, 1, 4, 3, Q("33.927855 mm")),
    Sketcher.Constraint("DistanceY", -1, 1, 7, 3, Q("8.499876 mm")),
    Sketcher.Constraint("DistanceY", -1, 1, 8, 3, Q("0.023883 mm")),
    Sketcher.Constraint("DistanceY", -1, 1, 10, 3, Q("59.348337 mm")),
    Sketcher.Constraint("DistanceX", 11, 3, -1, 1, Q("7.996692 mm")),
    Sketcher.Constraint("DistanceY", -1, 1, 11, 3, Q("50.872344 mm")),
    Sketcher.Constraint("DistanceX", -1, 1, 12, 3, Q("0.486798 mm")),
    Sketcher.Constraint("DistanceX", -1, 1, 13, 3, Q("8.970288 mm")),
    Sketcher.Constraint("DistanceY", -1, 1, 13, 3, Q("33.920358 mm")),
    Sketcher.Constraint("DistanceY", -1, 1, 14, 3, Q("25.444365 mm")),
    Sketcher.Constraint("DistanceX", -1, 1, 15, 3, Q("25.937268 mm")),
    Sketcher.Constraint("DistanceX", -1, 1, 16, 3, Q("34.420758 mm")),
    Sketcher.Constraint("DistanceY", -1, 1, 17, 3, Q("0.016386 mm")),
    Sketcher.Constraint("DistanceX", -1, 1, 18, 3, Q("51.387738 mm")),
    Sketcher.Constraint("DistanceY", 18, 3, -1, 1, Q("8.459607 mm")),
    Sketcher.Constraint("DistanceX", 20, 3, -1, 1, Q("24.956175 mm")),
    Sketcher.Constraint("DistanceY", -1, 1, 20, 3, Q("50.864847 mm")),
    Sketcher.Constraint("DistanceX", 21, 3, -1, 1, Q("16.472685 mm")),
    Sketcher.Constraint("DistanceY", -1, 1, 21, 3, Q("42.388854 mm")),
    Sketcher.Constraint("DistanceX", 22, 3, -1, 1, Q("7.989195 mm")),
    Sketcher.Constraint("DistanceX", -1, 1, 23, 3, Q("0.494295 mm")),
    Sketcher.Constraint("DistanceX", -1, 1, 24, 3, Q("8.977785 mm")),
    Sketcher.Constraint("DistanceY", -1, 1, 24, 3, Q("16.960875 mm")),
    Sketcher.Constraint("DistanceX", -1, 1, 25, 3, Q("17.461275 mm")),
    Sketcher.Constraint("DistanceY", -1, 1, 25, 3, Q("8.484882 mm")),
    Sketcher.Constraint("DistanceX", -1, 1, 26, 3, Q("25.944765 mm")),
    Sketcher.Constraint("DistanceX", -1, 1, 27, 3, Q("34.428255 mm")),
    Sketcher.Constraint("DistanceY", 27, 3, -1, 1, Q("8.467104 mm")),
    Sketcher.Constraint("DistanceX", -1, 1, 28, 3, Q("42.911745 mm")),
    Sketcher.Constraint("DistanceY", 28, 3, -1, 1, Q("16.943097 mm")),
    Sketcher.Constraint("DistanceX", -1, 1, 29, 3, Q("51.395235 mm")),
    Sketcher.Constraint("DistanceX", 30, 3, -1, 1, Q("33.432168 mm")),
    Sketcher.Constraint("DistanceY", -1, 1, 30, 3, Q("42.381357 mm")),
    Sketcher.Constraint("DistanceY", -1, 1, 31, 3, Q("33.905364 mm")),
    Sketcher.Constraint("DistanceX", 33, 3, -1, 1, Q("7.981698 mm")),
    Sketcher.Constraint("DistanceX", -1, 1, 34, 3, Q("0.501792 mm")),
    Sketcher.Constraint("DistanceY", -1, 1, 34, 3, Q("8.477385 mm")),
    Sketcher.Constraint("DistanceX", -1, 1, 35, 3, Q("8.985282 mm")),
    Sketcher.Constraint("DistanceY", -1, 1, 35, 3, Q("0.001392 mm")),
    Sketcher.Constraint("DistanceX", -1, 1, 36, 3, Q("17.468772 mm")),
    Sketcher.Constraint("DistanceX", -1, 1, 37, 3, Q("25.952262 mm")),
    Sketcher.Constraint("DistanceY", 37, 3, -1, 1, Q("16.950594 mm")),
    Sketcher.Constraint("DistanceX", -1, 1, 38, 3, Q("34.435752 mm")),
    Sketcher.Constraint("DistanceY", 38, 3, -1, 1, Q("25.426587 mm")),
    Sketcher.Constraint("DistanceY", -1, 1, 40, 3, Q("33.897867 mm")),
    Sketcher.Constraint("DistanceY", -1, 1, 41, 3, Q("25.421874 mm")),
    Sketcher.Constraint("DistanceY", -1, 1, 43, 3, Q("8.469888 mm")),
    Sketcher.Constraint("DistanceY", 44, 3, -1, 1, Q("0.006105 mm")),
    Sketcher.Constraint("DistanceY", 45, 3, -1, 1, Q("8.482098 mm")),
    Sketcher.Constraint("DistanceY", 47, 3, -1, 1, Q("25.434084 mm")),
    Sketcher.Constraint("DistanceY", 48, 3, -1, 1, Q("33.910077 mm")),
    Sketcher.Constraint("DistanceX", 50, 3, -1, 1, Q("50.384154 mm")),
    Sketcher.Constraint("DistanceY", -1, 1, 50, 3, Q("25.414377 mm")),
    Sketcher.Constraint("DistanceX", 51, 3, -1, 1, Q("41.900664 mm")),
    Sketcher.Constraint("DistanceY", -1, 1, 51, 3, Q("16.938384 mm")),
    Sketcher.Constraint("DistanceX", 52, 3, -1, 1, Q("33.417174 mm")),
    Sketcher.Constraint("DistanceX", 53, 3, -1, 1, Q("24.933684 mm")),
    Sketcher.Constraint("DistanceY", 53, 3, -1, 1, Q("0.013602 mm")),
    Sketcher.Constraint("DistanceX", 54, 3, -1, 1, Q("16.450194 mm")),
    Sketcher.Constraint("DistanceY", 54, 3, -1, 1, Q("8.489595 mm")),
    Sketcher.Constraint("DistanceX", 55, 3, -1, 1, Q("7.966704 mm")),
    Sketcher.Constraint("DistanceX", -1, 1, 56, 3, Q("0.516786 mm")),
    Sketcher.Constraint("DistanceX", -1, 1, 57, 3, Q("9.000276 mm")),
    Sketcher.Constraint("DistanceY", 57, 3, -1, 1, Q("33.917574 mm")),
    Sketcher.Constraint("DistanceX", -1, 1, 58, 3, Q("17.483766 mm")),
    Sketcher.Constraint("DistanceY", 58, 3, -1, 1, Q("42.393567 mm")),
    Sketcher.Constraint("DistanceX", -1, 1, 59, 3, Q("25.967256 mm")),
    Sketcher.Constraint("DistanceX", 60, 3, -1, 1, Q("58.860147 mm")),
    Sketcher.Constraint("DistanceY", -1, 1, 60, 3, Q("16.930887 mm")),
    Sketcher.Constraint("DistanceX", 61, 3, -1, 1, Q("50.376657 mm")),
    Sketcher.Constraint("DistanceY", -1, 1, 61, 3, Q("8.454894 mm")),
    Sketcher.Constraint("DistanceX", 62, 3, -1, 1, Q("41.893167 mm")),
    Sketcher.Constraint("DistanceX", 63, 3, -1, 1, Q("33.409677 mm")),
    Sketcher.Constraint("DistanceY", 63, 3, -1, 1, Q("8.497092 mm")),
    Sketcher.Constraint("DistanceX", 64, 3, -1, 1, Q("24.926187 mm")),
    Sketcher.Constraint("DistanceY", 64, 3, -1, 1, Q("16.973085 mm")),
    Sketcher.Constraint("DistanceX", 65, 3, -1, 1, Q("16.442697 mm")),
    Sketcher.Constraint("DistanceX", 66, 3, -1, 1, Q("7.959207 mm")),
    Sketcher.Constraint("DistanceX", -1, 1, 67, 3, Q("0.524283 mm")),
    Sketcher.Constraint("DistanceY", 67, 3, -1, 1, Q("42.401064 mm")),
    Sketcher.Constraint("DistanceX", -1, 1, 68, 3, Q("9.007773 mm")),
    Sketcher.Constraint("DistanceY", 68, 3, -1, 1, Q("50.877057 mm")),
    Sketcher.Constraint("DistanceX", -1, 1, 69, 3, Q("17.491263 mm")),
    Sketcher.Constraint("DistanceY", -1, 1, 70, 3, Q("8.447397 mm")),
    Sketcher.Constraint("DistanceY", 71, 3, -1, 1, Q("0.028596 mm")),
    Sketcher.Constraint("DistanceY", 74, 3, -1, 1, Q("25.456575 mm")),
    Sketcher.Constraint("DistanceY", 77, 3, -1, 1, Q("50.884554 mm")),
    Sketcher.Constraint("DistanceY", 78, 3, -1, 1, Q("59.360547 mm")),
])
pocket5 = doc.addObject("PartDesign::Pocket", "Pocket004")
body2.addObject(pocket5)
pocket5.Profile = sketch10
pocket5.Length = 3

# Sketch on XY plane
sketch11 = doc.addObject("Sketcher::SketchObject", "Sketch010")
body2.addObject(sketch11)
sketch11.AttachmentSupport = (doc.getObject("XY_Plane001"), [""])
sketch11.MapMode = "FlatFace"
sketch11.AttachmentOffset = App.Placement(V(0, 0, 11), App.Rotation())
add_polygon(sketch11, [(-45, 30), (-45, -30), (45, -30), (45, 30)])  # lines 0-3
add_polygon(sketch11, [(40, -25), (-40, -25), (-40, 25), (40, 25)])  # lines 4-7
sketch11.addConstraint([
    Sketcher.Constraint("Vertical", 0),
    Sketcher.Constraint("Horizontal", 1),
    Sketcher.Constraint("Vertical", 2),
    Sketcher.Constraint("Horizontal", 3),
    Sketcher.Constraint("Horizontal", 4),
    Sketcher.Constraint("Vertical", 5),
    Sketcher.Constraint("Horizontal", 6),
    Sketcher.Constraint("Vertical", 7),
    Sketcher.Constraint("Symmetric", 0, 2, 2, 2, -1, 1),
    Sketcher.Constraint("Symmetric", 4, 2, 6, 2, -1, 1),
    Sketcher.Constraint("DistanceX", 1, 1, 1, 2, Q("89.8 mm")),
    Sketcher.Constraint("DistanceX", 4, 2, 4, 1, Q("79.8 mm")),
    Sketcher.Constraint("DistanceY", 0, 2, 0, 1, Q("59.8 mm")),
    Sketcher.Constraint("DistanceY", 5, 1, 5, 2, Q("49.8 mm")),
])
pad6 = doc.addObject("PartDesign::Pad", "Pad005")
body2.addObject(pad6)
pad6.Profile = sketch11
pad6.Length = 3
pad6.Reversed = True

doc.recompute()
